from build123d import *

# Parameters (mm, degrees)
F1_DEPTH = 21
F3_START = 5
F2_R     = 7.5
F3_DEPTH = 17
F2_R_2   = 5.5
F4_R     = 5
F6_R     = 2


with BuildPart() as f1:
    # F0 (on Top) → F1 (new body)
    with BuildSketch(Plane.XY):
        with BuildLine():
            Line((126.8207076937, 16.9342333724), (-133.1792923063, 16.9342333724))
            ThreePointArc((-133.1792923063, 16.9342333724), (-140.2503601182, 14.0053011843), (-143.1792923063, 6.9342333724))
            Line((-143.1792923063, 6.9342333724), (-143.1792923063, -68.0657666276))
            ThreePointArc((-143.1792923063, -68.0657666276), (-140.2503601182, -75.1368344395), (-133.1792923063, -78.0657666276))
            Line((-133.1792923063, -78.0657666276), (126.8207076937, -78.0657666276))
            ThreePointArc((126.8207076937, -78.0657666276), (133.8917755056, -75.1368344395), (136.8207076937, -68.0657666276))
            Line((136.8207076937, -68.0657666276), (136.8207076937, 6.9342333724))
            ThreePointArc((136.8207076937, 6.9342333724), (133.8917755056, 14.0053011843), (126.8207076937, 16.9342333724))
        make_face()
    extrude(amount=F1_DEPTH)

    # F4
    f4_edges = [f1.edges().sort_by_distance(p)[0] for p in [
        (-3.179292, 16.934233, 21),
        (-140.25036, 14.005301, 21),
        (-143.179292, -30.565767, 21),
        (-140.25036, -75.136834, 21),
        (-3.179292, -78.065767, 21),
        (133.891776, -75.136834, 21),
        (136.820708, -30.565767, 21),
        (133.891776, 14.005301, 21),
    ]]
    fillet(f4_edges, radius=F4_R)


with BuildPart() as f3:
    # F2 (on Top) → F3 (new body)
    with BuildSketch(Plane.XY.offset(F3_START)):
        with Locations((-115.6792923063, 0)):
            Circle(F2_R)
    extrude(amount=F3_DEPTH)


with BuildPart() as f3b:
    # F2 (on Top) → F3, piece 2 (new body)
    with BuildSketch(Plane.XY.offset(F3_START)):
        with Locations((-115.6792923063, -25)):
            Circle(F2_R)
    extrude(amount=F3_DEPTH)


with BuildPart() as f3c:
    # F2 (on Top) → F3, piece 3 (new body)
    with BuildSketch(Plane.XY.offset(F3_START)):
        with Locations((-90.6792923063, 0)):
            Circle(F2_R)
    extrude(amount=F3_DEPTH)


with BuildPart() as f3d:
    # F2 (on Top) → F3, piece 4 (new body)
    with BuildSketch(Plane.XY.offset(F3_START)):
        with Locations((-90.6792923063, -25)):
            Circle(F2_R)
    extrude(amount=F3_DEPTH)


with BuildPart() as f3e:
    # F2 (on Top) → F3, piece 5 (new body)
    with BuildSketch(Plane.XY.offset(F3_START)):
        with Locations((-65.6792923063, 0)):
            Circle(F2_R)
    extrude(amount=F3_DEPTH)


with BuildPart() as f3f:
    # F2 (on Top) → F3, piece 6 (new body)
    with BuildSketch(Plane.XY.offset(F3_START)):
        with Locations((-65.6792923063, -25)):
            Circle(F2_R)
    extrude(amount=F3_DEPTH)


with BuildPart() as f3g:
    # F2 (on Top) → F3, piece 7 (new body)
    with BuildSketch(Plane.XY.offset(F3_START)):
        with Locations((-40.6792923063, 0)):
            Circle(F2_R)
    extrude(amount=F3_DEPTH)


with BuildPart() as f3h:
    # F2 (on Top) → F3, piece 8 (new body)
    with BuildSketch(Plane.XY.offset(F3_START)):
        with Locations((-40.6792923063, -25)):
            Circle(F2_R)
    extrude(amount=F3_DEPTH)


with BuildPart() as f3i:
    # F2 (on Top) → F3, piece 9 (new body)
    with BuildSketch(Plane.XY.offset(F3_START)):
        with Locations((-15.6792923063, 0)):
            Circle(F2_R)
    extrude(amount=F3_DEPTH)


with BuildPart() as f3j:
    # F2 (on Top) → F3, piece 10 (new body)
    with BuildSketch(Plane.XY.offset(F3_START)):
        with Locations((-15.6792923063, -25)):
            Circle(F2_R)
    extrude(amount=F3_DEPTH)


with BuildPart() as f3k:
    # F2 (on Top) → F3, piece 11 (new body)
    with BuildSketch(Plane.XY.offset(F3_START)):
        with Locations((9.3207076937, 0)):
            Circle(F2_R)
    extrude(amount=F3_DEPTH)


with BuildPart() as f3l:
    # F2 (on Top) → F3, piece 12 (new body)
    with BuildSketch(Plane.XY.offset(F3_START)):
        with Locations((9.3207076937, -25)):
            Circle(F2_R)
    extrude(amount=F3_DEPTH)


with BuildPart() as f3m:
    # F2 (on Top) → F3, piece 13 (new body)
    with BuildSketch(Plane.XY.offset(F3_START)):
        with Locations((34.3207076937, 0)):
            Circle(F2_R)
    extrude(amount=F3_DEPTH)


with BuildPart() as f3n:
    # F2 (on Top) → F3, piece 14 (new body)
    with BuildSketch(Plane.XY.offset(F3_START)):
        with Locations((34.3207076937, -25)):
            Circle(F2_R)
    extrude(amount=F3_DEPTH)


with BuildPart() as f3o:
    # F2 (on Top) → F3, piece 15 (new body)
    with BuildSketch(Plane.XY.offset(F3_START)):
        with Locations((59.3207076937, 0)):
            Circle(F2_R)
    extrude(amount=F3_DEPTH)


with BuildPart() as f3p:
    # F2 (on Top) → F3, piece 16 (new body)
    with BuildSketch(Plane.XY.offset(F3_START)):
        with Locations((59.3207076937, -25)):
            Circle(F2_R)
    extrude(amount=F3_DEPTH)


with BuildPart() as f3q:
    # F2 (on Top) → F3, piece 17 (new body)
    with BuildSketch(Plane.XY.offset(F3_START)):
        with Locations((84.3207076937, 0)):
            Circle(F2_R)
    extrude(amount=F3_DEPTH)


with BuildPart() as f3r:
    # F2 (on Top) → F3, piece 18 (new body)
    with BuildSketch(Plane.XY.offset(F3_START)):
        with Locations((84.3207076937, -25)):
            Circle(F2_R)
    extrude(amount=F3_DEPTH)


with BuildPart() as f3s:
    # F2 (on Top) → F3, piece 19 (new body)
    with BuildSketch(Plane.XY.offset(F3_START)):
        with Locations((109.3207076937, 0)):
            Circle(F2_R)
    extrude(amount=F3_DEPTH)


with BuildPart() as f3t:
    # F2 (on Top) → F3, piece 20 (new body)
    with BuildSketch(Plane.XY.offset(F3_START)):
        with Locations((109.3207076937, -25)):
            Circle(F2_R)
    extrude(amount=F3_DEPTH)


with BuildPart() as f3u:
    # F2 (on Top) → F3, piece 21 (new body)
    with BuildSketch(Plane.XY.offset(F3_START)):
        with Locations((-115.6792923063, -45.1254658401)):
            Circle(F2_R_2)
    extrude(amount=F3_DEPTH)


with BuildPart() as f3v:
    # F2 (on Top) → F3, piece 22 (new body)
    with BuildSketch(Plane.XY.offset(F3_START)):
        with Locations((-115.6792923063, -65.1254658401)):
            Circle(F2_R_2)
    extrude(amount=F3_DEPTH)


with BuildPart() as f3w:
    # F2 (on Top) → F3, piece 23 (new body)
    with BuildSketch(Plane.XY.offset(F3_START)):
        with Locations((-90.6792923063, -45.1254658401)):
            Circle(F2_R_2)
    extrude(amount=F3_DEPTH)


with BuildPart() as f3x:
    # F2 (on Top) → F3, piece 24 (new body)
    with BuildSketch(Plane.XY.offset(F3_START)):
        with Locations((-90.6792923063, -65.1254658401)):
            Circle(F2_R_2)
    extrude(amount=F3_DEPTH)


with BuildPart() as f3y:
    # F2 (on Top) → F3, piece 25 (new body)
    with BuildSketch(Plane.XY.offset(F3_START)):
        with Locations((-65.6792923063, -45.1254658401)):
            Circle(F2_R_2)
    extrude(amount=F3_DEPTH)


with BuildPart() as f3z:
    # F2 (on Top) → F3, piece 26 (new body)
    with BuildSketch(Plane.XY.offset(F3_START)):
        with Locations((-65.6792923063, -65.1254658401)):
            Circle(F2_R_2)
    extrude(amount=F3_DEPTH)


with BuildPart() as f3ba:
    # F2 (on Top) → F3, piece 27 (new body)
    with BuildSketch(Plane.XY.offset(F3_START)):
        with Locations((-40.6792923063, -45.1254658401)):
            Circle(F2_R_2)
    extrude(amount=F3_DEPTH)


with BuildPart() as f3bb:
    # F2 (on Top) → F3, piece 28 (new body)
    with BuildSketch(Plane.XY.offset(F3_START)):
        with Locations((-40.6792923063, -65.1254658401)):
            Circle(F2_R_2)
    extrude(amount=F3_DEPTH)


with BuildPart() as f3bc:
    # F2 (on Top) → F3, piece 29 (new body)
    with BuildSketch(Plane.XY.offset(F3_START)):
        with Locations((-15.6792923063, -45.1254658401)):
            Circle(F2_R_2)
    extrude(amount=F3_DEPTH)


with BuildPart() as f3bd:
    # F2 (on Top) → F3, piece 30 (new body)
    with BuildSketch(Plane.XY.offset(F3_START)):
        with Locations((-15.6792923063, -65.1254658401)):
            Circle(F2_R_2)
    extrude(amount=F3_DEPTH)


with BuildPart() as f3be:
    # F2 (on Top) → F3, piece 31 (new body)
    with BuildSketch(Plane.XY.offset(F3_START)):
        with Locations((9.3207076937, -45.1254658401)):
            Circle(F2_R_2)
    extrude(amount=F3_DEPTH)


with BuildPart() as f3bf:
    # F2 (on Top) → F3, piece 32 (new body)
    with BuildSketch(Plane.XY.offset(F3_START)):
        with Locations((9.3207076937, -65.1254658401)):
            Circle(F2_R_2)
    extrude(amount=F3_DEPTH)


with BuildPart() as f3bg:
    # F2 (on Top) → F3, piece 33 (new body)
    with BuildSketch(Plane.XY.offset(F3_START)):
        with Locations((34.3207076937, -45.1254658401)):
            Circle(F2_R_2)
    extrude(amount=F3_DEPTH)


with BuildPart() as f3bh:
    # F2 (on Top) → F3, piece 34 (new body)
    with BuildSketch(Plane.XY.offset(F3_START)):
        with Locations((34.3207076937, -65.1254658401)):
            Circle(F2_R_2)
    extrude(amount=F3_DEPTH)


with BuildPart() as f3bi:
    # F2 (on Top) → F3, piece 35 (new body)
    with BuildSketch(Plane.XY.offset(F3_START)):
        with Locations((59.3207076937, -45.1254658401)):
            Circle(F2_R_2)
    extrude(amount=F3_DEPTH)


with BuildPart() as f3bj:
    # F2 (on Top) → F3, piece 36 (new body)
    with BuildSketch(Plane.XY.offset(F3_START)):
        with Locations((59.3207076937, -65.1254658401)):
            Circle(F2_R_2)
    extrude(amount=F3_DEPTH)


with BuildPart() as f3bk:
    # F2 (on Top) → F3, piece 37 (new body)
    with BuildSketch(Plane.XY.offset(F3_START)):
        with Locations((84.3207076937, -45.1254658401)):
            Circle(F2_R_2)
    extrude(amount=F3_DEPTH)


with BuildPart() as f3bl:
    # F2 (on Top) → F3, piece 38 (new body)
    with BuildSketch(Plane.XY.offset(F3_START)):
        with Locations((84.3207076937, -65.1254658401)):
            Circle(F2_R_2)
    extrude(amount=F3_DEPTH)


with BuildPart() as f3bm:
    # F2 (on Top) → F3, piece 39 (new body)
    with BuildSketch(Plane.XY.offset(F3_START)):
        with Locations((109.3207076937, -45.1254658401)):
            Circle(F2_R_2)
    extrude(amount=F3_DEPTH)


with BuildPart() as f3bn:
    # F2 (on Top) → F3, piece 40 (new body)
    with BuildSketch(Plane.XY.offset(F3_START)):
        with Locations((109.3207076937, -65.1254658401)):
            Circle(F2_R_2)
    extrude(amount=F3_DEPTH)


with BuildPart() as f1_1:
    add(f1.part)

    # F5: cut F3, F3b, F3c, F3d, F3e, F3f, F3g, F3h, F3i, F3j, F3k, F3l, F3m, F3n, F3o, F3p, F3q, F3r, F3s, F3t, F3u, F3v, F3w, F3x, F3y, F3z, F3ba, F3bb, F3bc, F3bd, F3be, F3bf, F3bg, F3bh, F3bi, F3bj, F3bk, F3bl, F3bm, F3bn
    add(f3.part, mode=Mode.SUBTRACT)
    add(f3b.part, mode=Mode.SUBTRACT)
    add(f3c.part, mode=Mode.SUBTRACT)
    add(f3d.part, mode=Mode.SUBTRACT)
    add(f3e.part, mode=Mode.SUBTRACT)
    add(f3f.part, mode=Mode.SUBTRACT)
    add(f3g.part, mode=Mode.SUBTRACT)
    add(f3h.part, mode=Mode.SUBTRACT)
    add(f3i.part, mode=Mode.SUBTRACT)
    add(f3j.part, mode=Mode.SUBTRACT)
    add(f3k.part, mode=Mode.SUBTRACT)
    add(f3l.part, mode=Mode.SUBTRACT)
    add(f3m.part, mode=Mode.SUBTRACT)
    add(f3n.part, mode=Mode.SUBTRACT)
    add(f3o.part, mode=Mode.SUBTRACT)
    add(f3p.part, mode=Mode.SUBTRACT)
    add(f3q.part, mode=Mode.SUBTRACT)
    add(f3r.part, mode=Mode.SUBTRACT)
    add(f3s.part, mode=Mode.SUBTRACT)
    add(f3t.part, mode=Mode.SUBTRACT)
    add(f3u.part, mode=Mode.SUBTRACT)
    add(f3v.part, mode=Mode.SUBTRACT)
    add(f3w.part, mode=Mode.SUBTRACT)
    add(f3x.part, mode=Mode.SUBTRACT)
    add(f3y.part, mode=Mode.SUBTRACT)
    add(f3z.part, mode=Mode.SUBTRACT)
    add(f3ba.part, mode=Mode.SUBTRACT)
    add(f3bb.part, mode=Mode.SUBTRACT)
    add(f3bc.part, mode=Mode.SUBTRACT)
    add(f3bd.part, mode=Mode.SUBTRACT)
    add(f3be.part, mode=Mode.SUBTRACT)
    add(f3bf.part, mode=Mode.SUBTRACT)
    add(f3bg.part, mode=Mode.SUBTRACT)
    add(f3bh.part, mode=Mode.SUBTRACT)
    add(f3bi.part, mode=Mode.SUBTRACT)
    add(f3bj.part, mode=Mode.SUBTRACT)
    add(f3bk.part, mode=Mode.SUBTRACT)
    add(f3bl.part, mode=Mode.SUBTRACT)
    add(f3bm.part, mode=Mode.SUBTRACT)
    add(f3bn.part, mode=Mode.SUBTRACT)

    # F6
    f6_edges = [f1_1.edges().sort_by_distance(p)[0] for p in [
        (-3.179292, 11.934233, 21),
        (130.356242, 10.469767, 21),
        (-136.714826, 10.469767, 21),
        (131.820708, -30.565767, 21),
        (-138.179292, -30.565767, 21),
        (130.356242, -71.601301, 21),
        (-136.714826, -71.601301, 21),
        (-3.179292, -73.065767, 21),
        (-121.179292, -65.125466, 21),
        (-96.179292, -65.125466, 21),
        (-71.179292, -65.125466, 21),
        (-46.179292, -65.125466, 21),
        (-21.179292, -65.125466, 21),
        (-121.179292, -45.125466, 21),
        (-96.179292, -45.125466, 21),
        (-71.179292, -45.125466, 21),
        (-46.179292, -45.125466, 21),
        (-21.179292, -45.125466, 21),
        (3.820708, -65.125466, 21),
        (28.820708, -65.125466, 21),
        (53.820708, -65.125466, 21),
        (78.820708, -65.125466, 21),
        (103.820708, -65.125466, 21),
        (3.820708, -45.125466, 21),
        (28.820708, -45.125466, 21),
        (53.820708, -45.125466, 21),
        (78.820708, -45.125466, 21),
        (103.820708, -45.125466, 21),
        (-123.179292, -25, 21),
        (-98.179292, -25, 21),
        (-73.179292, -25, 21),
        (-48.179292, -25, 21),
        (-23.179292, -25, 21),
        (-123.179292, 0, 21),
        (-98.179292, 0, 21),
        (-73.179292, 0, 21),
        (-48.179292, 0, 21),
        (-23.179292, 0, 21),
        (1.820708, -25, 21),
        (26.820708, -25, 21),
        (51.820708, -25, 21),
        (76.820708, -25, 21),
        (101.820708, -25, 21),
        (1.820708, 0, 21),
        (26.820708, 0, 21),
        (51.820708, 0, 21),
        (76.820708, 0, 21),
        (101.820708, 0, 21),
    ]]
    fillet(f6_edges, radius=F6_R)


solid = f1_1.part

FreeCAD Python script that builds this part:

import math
import FreeCAD as App
import Part
import Sketcher

V = App.Vector


def edges_at(feature, points):
    """Names of the edges that pass closest to the given points."""
    edges = feature.Shape.Edges
    near = lambda p: min(range(len(edges)), key=lambda i: edges[i].distToShape(Part.Vertex(*p))[0])
    return sorted({f"Edge{near(p) + 1}" for p in points})

doc = App.newDocument("Part")
body = doc.addObject("PartDesign::Body", "Body")

# Sketch on XY plane
sketch1 = body.newObject("Sketcher::SketchObject", "Sketch")
sketch1.AttachmentSupport = (doc.getObject("XY_Plane"), [""])
sketch1.MapMode = "FlatFace"
sketch1.addGeometry(Part.LineSegment(V(127, 17, 0), V(-133, 17, 0)), False)
sketch1.addGeometry(Part.ArcOfCircle(Part.Circle(V(-133, 7, 0), V(0, 0, 1), 10), math.radians(90), math.radians(180)), False)
sketch1.addGeometry(Part.LineSegment(V(-143, 7, 0), V(-143, -68, 0)), False)
sketch1.addGeometry(Part.ArcOfCircle(Part.Circle(V(-133, -68, 0), V(0, 0, 1), 10), math.radians(180), math.radians(270)), False)
sketch1.addGeometry(Part.LineSegment(V(-133, -78, 0), V(127, -78, 0)), False)
sketch1.addGeometry(Part.ArcOfCircle(Part.Circle(V(127, -68, 0), V(0, 0, 1), 10), math.radians(-90), math.radians(0)), False)
sketch1.addGeometry(Part.LineSegment(V(137, -68, 0), V(137, 7, 0)), False)
sketch1.addGeometry(Part.ArcOfCircle(Part.Circle(V(127, 7, 0), V(0, 0, 1), 10), math.radians(0), math.radians(90)), False)
sketch1.addConstraint(Sketcher.Constraint("Tangent", 0, 2, 1, 1))
sketch1.addConstraint(Sketcher.Constraint("Tangent", 1, 2, 2, 1))
sketch1.addConstraint(Sketcher.Constraint("Tangent", 2, 2, 3, 1))
sketch1.addConstraint(Sketcher.Constraint("Tangent", 3, 2, 4, 1))
sketch1.addConstraint(Sketcher.Constraint("Tangent", 4, 2, 5, 1))
sketch1.addConstraint(Sketcher.Constraint("Tangent", 5, 2, 6, 1))
sketch1.addConstraint(Sketcher.Constraint("Tangent", 6, 2, 7, 1))
sketch1.addConstraint(Sketcher.Constraint("Tangent", 7, 2, 0, 1))
sketch1.addConstraint(Sketcher.Constraint("Horizontal", 0))
sketch1.addConstraint(Sketcher.Constraint("Vertical", 2))
sketch1.addConstraint(Sketcher.Constraint("Horizontal", 4))
sketch1.addConstraint(Sketcher.Constraint("Vertical", 6))
sketch1.addConstraint(Sketcher.Constraint("Equal", 1, 3))
sketch1.addConstraint(Sketcher.Constraint("Equal", 3, 5))
sketch1.addConstraint(Sketcher.Constraint("Equal", 5, 7))
sketch1.addConstraint(Sketcher.Constraint("Radius", 1, 10.0))
sketch1.addConstraint(Sketcher.Constraint("DistanceX", 0, 2, 0, 1, 260.0))
sketch1.addConstraint(Sketcher.Constraint("DistanceY", 2, 2, 2, 1, 75.0))
sketch1.addConstraint(Sketcher.Constraint("DistanceX", 1, 3, -1, 1, 133.179292))
sketch1.addConstraint(Sketcher.Constraint("DistanceY", -1, 1, 1, 3, 6.934233))
pad1 = body.newObject("PartDesign::Pad", "Pad")
pad1.Profile = sketch1
pad1.Length = 21
doc.recompute()

fillet = body.newObject("PartDesign::Fillet", "Fillet")
fillet.Base = (pad1, edges_at(pad1, [
    (-3.179, 16.934, 21),
    (-140.25, 14.005, 21),
    (-143.179, -30.566, 21),
    (-140.25, -75.137, 21),
    (-3.179, -78.066, 21),
    (133.892, -75.137, 21),
    (136.821, -30.566, 21),
    (133.892, 14.005, 21),
]))
fillet.Radius = 5
body2 = doc.addObject("PartDesign::Body", "Body001")

# Sketch on XY plane
sketch2 = body2.newObject("Sketcher::SketchObject", "Sketch001")
sketch2.AttachmentSupport = (doc.getObject("XY_Plane001"), [""])
sketch2.MapMode = "FlatFace"
sketch2.AttachmentOffset = App.Placement(V(0, 0, 5), App.Rotation())
sketch2.addGeometry(Part.Circle(V(-116, 0, 0), V(0, 0, 1), 8), False)
sketch2.addConstraint(Sketcher.Constraint("PointOnObject", 0, 3, -1))
sketch2.addConstraint(Sketcher.Constraint("Diameter", 0, 15.0))
sketch2.addConstraint(Sketcher.Constraint("DistanceX", 0, 3, -1, 1, 115.679292))
pad2 = body2.newObject("PartDesign::Pad", "Pad001")
pad2.Profile = sketch2
pad2.Length = 17
body3 = doc.addObject("PartDesign::Body", "Body002")

# Sketch on XY plane
sketch3 = body3.newObject("Sketcher::SketchObject", "Sketch002")
sketch3.AttachmentSupport = (doc.getObject("XY_Plane002"), [""])
sketch3.MapMode = "FlatFace"
sketch3.AttachmentOffset = App.Placement(V(0, 0, 5), App.Rotation())
sketch3.addGeometry(Part.Circle(V(-116, -25, 0), V(0, 0, 1), 8), False)
sketch3.addConstraint(Sketcher.Constraint("Diameter", 0, 15.0))
sketch3.addConstraint(Sketcher.Constraint("DistanceY", 0, 3, -1, 1, 25.0))
sketch3.addConstraint(Sketcher.Constraint("DistanceX", 0, 3, -1, 1, 115.679292))
pad3 = body3.newObject("PartDesign::Pad", "Pad002")
pad3.Profile = sketch3
pad3.Length = 17
body4 = doc.addObject("PartDesign::Body", "Body003")

# Sketch on XY plane
sketch4 = body4.newObject("Sketcher::SketchObject", "Sketch003")
sketch4.AttachmentSupport = (doc.getObject("XY_Plane003"), [""])
sketch4.MapMode = "FlatFace"
sketch4.AttachmentOffset = App.Placement(V(0, 0, 5), App.Rotation())
sketch4.addGeometry(Part.Circle(V(-91, 0, 0), V(0, 0, 1), 8), False)
sketch4.addConstraint(Sketcher.Constraint("PointOnObject", 0, 3, -1))
sketch4.addConstraint(Sketcher.Constraint("Diameter", 0, 15.0))
sketch4.addConstraint(Sketcher.Constraint("DistanceX", 0, 3, -1, 1, 90.679292))
pad4 = body4.newObject("PartDesign::Pad", "Pad003")
pad4.Profile = sketch4
pad4.Length = 17
body5 = doc.addObject("PartDesign::Body", "Body004")

# Sketch on XY plane
sketch5 = body5.newObject("Sketcher::SketchObject", "Sketch004")
sketch5.AttachmentSupport = (doc.getObject("XY_Plane004"), [""])
sketch5.MapMode = "FlatFace"
sketch5.AttachmentOffset = App.Placement(V(0, 0, 5), App.Rotation())
sketch5.addGeometry(Part.Circle(V(-91, -25, 0), V(0, 0, 1), 8), False)
sketch5.addConstraint(Sketcher.Constraint("Diameter", 0, 15.0))
sketch5.addConstraint(Sketcher.Constraint("DistanceY", 0, 3, -1, 1, 25.0))
sketch5.addConstraint(Sketcher.Constraint("DistanceX", 0, 3, -1, 1, 90.679292))
pad5 = body5.newObject("PartDesign::Pad", "Pad004")
pad5.Profile = sketch5
pad5.Length = 17
body6 = doc.addObject("PartDesign::Body", "Body005")

# Sketch on XY plane
sketch6 = body6.newObject("Sketcher::SketchObject", "Sketch005")
sketch6.AttachmentSupport = (doc.getObject("XY_Plane005"), [""])
sketch6.MapMode = "FlatFace"
sketch6.AttachmentOffset = App.Placement(V(0, 0, 5), App.Rotation())
sketch6.addGeometry(Part.Circle(V(-66, 0, 0), V(0, 0, 1), 8), False)
sketch6.addConstraint(Sketcher.Constraint("PointOnObject", 0, 3, -1))
sketch6.addConstraint(Sketcher.Constraint("Diameter", 0, 15.0))
sketch6.addConstraint(Sketcher.Constraint("DistanceX", 0, 3, -1, 1, 65.679292))
pad6 = body6.newObject("PartDesign::Pad", "Pad005")
pad6.Profile = sketch6
pad6.Length = 17
body7 = doc.addObject("PartDesign::Body", "Body006")

# Sketch on XY plane
sketch7 = body7.newObject("Sketcher::SketchObject", "Sketch006")
sketch7.AttachmentSupport = (doc.getObject("XY_Plane006"), [""])
sketch7.MapMode = "FlatFace"
sketch7.AttachmentOffset = App.Placement(V(0, 0, 5), App.Rotation())
sketch7.addGeometry(Part.Circle(V(-66, -25, 0), V(0, 0, 1), 8), False)
sketch7.addConstraint(Sketcher.Constraint("Diameter", 0, 15.0))
sketch7.addConstraint(Sketcher.Constraint("DistanceY", 0, 3, -1, 1, 25.0))
sketch7.addConstraint(Sketcher.Constraint("DistanceX", 0, 3, -1, 1, 65.679292))
pad7 = body7.newObject("PartDesign::Pad", "Pad006")
pad7.Profile = sketch7
pad7.Length = 17
body8 = doc.addObject("PartDesign::Body", "Body007")

# Sketch on XY plane
sketch8 = body8.newObject("Sketcher::SketchObject", "Sketch007")
sketch8.AttachmentSupport = (doc.getObject("XY_Plane007"), [""])
sketch8.MapMode = "FlatFace"
sketch8.AttachmentOffset = App.Placement(V(0, 0, 5), App.Rotation())
sketch8.addGeometry(Part.Circle(V(-41, 0, 0), V(0, 0, 1), 8), False)
sketch8.addConstraint(Sketcher.Constraint("PointOnObject", 0, 3, -1))
sketch8.addConstraint(Sketcher.Constraint("Diameter", 0, 15.0))
sketch8.addConstraint(Sketcher.Constraint("DistanceX", 0, 3, -1, 1, 40.679292))
pad8 = body8.newObject("PartDesign::Pad", "Pad007")
pad8.Profile = sketch8
pad8.Length = 17
body9 = doc.addObject("PartDesign::Body", "Body008")

# Sketch on XY plane
sketch9 = body9.newObject("Sketcher::SketchObject", "Sketch008")
sketch9.AttachmentSupport = (doc.getObject("XY_Plane008"), [""])
sketch9.MapMode = "FlatFace"
sketch9.AttachmentOffset = App.Placement(V(0, 0, 5), App.Rotation())
sketch9.addGeometry(Part.Circle(V(-41, -25, 0), V(0, 0, 1), 8), False)
sketch9.addConstraint(Sketcher.Constraint("Diameter", 0, 15.0))
sketch9.addConstraint(Sketcher.Constraint("DistanceY", 0, 3, -1, 1, 25.0))
sketch9.addConstraint(Sketcher.Constraint("DistanceX", 0, 3, -1, 1, 40.679292))
pad9 = body9.newObject("PartDesign::Pad", "Pad008")
pad9.Profile = sketch9
pad9.Length = 17
body10 = doc.addObject("PartDesign::Body", "Body009")

# Sketch on XY plane
sketch10 = body10.newObject("Sketcher::SketchObject", "Sketch009")
sketch10.AttachmentSupport = (doc.getObject("XY_Plane009"), [""])
sketch10.MapMode = "FlatFace"
sketch10.AttachmentOffset = App.Placement(V(0, 0, 5), App.Rotation())
sketch10.addGeometry(Part.Circle(V(-16, 0, 0), V(0, 0, 1), 8), False)
sketch10.addConstraint(Sketcher.Constraint("PointOnObject", 0, 3, -1))
sketch10.addConstraint(Sketcher.Constraint("Diameter", 0, 15.0))
sketch10.addConstraint(Sketcher.Constraint("DistanceX", 0, 3, -1, 1, 15.679292))
pad10 = body10.newObject("PartDesign::Pad", "Pad009")
pad10.Profile = sketch10
pad10.Length = 17
body11 = doc.addObject("PartDesign::Body", "Body010")

# Sketch on XY plane
sketch11 = body11.newObject("Sketcher::SketchObject", "Sketch010")
sketch11.AttachmentSupport = (doc.getObject("XY_Plane010"), [""])
sketch11.MapMode = "FlatFace"
sketch11.AttachmentOffset = App.Placement(V(0, 0, 5), App.Rotation())
sketch11.addGeometry(Part.Circle(V(-16, -25, 0), V(0, 0, 1), 8), False)
sketch11.addConstraint(Sketcher.Constraint("Diameter", 0, 15.0))
sketch11.addConstraint(Sketcher.Constraint("DistanceY", 0, 3, -1, 1, 25.0))
sketch11.addConstraint(Sketcher.Constraint("DistanceX", 0, 3, -1, 1, 15.679292))
pad11 = body11.newObject("PartDesign::Pad", "Pad010")
pad11.Profile = sketch11
pad11.Length = 17
body12 = doc.addObject("PartDesign::Body", "Body011")

# Sketch on XY plane
sketch12 = body12.newObject("Sketcher::SketchObject", "Sketch011")
sketch12.AttachmentSupport = (doc.getObject("XY_Plane011"), [""])
sketch12.MapMode = "FlatFace"
sketch12.AttachmentOffset = App.Placement(V(0, 0, 5), App.Rotation())
sketch12.addGeometry(Part.Circle(V(9, 0, 0), V(0, 0, 1), 8), False)
sketch12.addConstraint(Sketcher.Constraint("PointOnObject", 0, 3, -1))
sketch12.addConstraint(Sketcher.Constraint("Diameter", 0, 15.0))
sketch12.addConstraint(Sketcher.Constraint("DistanceX", -1, 1, 0, 3, 9.320708))
pad12 = body12.newObject("PartDesign::Pad", "Pad011")
pad12.Profile = sketch12
pad12.Length = 17
body13 = doc.addObject("PartDesign::Body", "Body012")

# Sketch on XY plane
sketch13 = body13.newObject("Sketcher::SketchObject", "Sketch012")
sketch13.AttachmentSupport = (doc.getObject("XY_Plane012"), [""])
sketch13.MapMode = "FlatFace"
sketch13.AttachmentOffset = App.Placement(V(0, 0, 5), App.Rotation())
sketch13.addGeometry(Part.Circle(V(9, -25, 0), V(0, 0, 1), 8), False)
sketch13.addConstraint(Sketcher.Constraint("Diameter", 0, 15.0))
sketch13.addConstraint(Sketcher.Constraint("DistanceY", 0, 3, -1, 1, 25.0))
sketch13.addConstraint(Sketcher.Constraint("DistanceX", -1, 1, 0, 3, 9.320708))
pad13 = body13.newObject("PartDesign::Pad", "Pad012")
pad13.Profile = sketch13
pad13.Length = 17
body14 = doc.addObject("PartDesign::Body", "Body013")

# Sketch on XY plane
sketch14 = body14.newObject("Sketcher::SketchObject", "Sketch013")
sketch14.AttachmentSupport = (doc.getObject("XY_Plane013"), [""])
sketch14.MapMode = "FlatFace"
sketch14.AttachmentOffset = App.Placement(V(0, 0, 5), App.Rotation())
sketch14.addGeometry(Part.Circle(V(34, 0, 0), V(0, 0, 1), 8), False)
sketch14.addConstraint(Sketcher.Constraint("PointOnObject", 0, 3, -1))
sketch14.addConstraint(Sketcher.Constraint("Diameter", 0, 15.0))
sketch14.addConstraint(Sketcher.Constraint("DistanceX", -1, 1, 0, 3, 34.320708))
pad14 = body14.newObject("PartDesign::Pad", "Pad013")
pad14.Profile = sketch14
pad14.Length = 17
body15 = doc.addObject("PartDesign::Body", "Body014")

# Sketch on XY plane
sketch15 = body15.newObject("Sketcher::SketchObject", "Sketch014")
sketch15.AttachmentSupport = (doc.getObject("XY_Plane014"), [""])
sketch15.MapMode = "FlatFace"
sketch15.AttachmentOffset = App.Placement(V(0, 0, 5), App.Rotation())
sketch15.addGeometry(Part.Circle(V(34, -25, 0), V(0, 0, 1), 8), False)
sketch15.addConstraint(Sketcher.Constraint("Diameter", 0, 15.0))
sketch15.addConstraint(Sketcher.Constraint("DistanceY", 0, 3, -1, 1, 25.0))
sketch15.addConstraint(Sketcher.Constraint("DistanceX", -1, 1, 0, 3, 34.320708))
pad15 = body15.newObject("PartDesign::Pad", "Pad014")
pad15.Profile = sketch15
pad15.Length = 17
body16 = doc.addObject("PartDesign::Body", "Body015")

# Sketch on XY plane
sketch16 = body16.newObject("Sketcher::SketchObject", "Sketch015")
sketch16.AttachmentSupport = (doc.getObject("XY_Plane015"), [""])
sketch16.MapMode = "FlatFace"
sketch16.AttachmentOffset = App.Placement(V(0, 0, 5), App.Rotation())
sketch16.addGeometry(Part.Circle(V(59, 0, 0), V(0, 0, 1), 8), False)
sketch16.addConstraint(Sketcher.Constraint("PointOnObject", 0, 3, -1))
sketch16.addConstraint(Sketcher.Constraint("Diameter", 0, 15.0))
sketch16.addConstraint(Sketcher.Constraint("DistanceX", -1, 1, 0, 3, 59.320708))
pad16 = body16.newObject("PartDesign::Pad", "Pad015")
pad16.Profile = sketch16
pad16.Length = 17
body17 = doc.addObject("PartDesign::Body", "Body016")

# Sketch on XY plane
sketch17 = body17.newObject("Sketcher::SketchObject", "Sketch016")
sketch17.AttachmentSupport = (doc.getObject("XY_Plane016"), [""])
sketch17.MapMode = "FlatFace"
sketch17.AttachmentOffset = App.Placement(V(0, 0, 5), App.Rotation())
sketch17.addGeometry(Part.Circle(V(59, -25, 0), V(0, 0, 1), 8), False)
sketch17.addConstraint(Sketcher.Constraint("Diameter", 0, 15.0))
sketch17.addConstraint(Sketcher.Constraint("DistanceY", 0, 3, -1, 1, 25.0))
sketch17.addConstraint(Sketcher.Constraint("DistanceX", -1, 1, 0, 3, 59.320708))
pad17 = body17.newObject("PartDesign::Pad", "Pad016")
pad17.Profile = sketch17
pad17.Length = 17
body18 = doc.addObject("PartDesign::Body", "Body017")

# Sketch on XY plane
sketch18 = body18.newObject("Sketcher::SketchObject", "Sketch017")
sketch18.AttachmentSupport = (doc.getObject("XY_Plane017"), [""])
sketch18.MapMode = "FlatFace"
sketch18.AttachmentOffset = App.Placement(V(0, 0, 5), App.Rotation())
sketch18.addGeometry(Part.Circle(V(84, 0, 0), V(0, 0, 1), 8), False)
sketch18.addConstraint(Sketcher.Constraint("PointOnObject", 0, 3, -1))
sketch18.addConstraint(Sketcher.Constraint("Diameter", 0, 15.0))
sketch18.addConstraint(Sketcher.Constraint("DistanceX", -1, 1, 0, 3, 84.320708))
pad18 = body18.newObject("PartDesign::Pad", "Pad017")
pad18.Profile = sketch18
pad18.Length = 17
body19 = doc.addObject("PartDesign::Body", "Body018")

# Sketch on XY plane
sketch19 = body19.newObject("Sketcher::SketchObject", "Sketch018")
sketch19.AttachmentSupport = (doc.getObject("XY_Plane018"), [""])
sketch19.MapMode = "FlatFace"
sketch19.AttachmentOffset = App.Placement(V(0, 0, 5), App.Rotation())
sketch19.addGeometry(Part.Circle(V(84, -25, 0), V(0, 0, 1), 8), False)
sketch19.addConstraint(Sketcher.Constraint("Diameter", 0, 15.0))
sketch19.addConstraint(Sketcher.Constraint("DistanceY", 0, 3, -1, 1, 25.0))
sketch19.addConstraint(Sketcher.Constraint("DistanceX", -1, 1, 0, 3, 84.320708))
pad19 = body19.newObject("PartDesign::Pad", "Pad018")
pad19.Profile = sketch19
pad19.Length = 17
body20 = doc.addObject("PartDesign::Body", "Body019")

# Sketch on XY plane
sketch20 = body20.newObject("Sketcher::SketchObject", "Sketch019")
sketch20.AttachmentSupport = (doc.getObject("XY_Plane019"), [""])
sketch20.MapMode = "FlatFace"
sketch20.AttachmentOffset = App.Placement(V(0, 0, 5), App.Rotation())
sketch20.addGeometry(Part.Circle(V(109, 0, 0), V(0, 0, 1), 8), False)
sketch20.addConstraint(Sketcher.Constraint("PointOnObject", 0, 3, -1))
sketch20.addConstraint(Sketcher.Constraint("Diameter", 0, 15.0))
sketch20.addConstraint(Sketcher.Constraint("DistanceX", -1, 1, 0, 3, 109.320708))
pad20 = body20.newObject("PartDesign::Pad", "Pad019")
pad20.Profile = sketch20
pad20.Length = 17
body21 = doc.addObject("PartDesign::Body", "Body020")

# Sketch on XY plane
sketch21 = body21.newObject("Sketcher::SketchObject", "Sketch020")
sketch21.AttachmentSupport = (doc.getObject("XY_Plane020"), [""])
sketch21.MapMode = "FlatFace"
sketch21.AttachmentOffset = App.Placement(V(0, 0, 5), App.Rotation())
sketch21.addGeometry(Part.Circle(V(109, -25, 0), V(0, 0, 1), 8), False)
sketch21.addConstraint(Sketcher.Constraint("Diameter", 0, 15.0))
sketch21.addConstraint(Sketcher.Constraint("DistanceY", 0, 3, -1, 1, 25.0))
sketch21.addConstraint(Sketcher.Constraint("DistanceX", -1, 1, 0, 3, 109.320708))
pad21 = body21.newObject("PartDesign::Pad", "Pad020")
pad21.Profile = sketch21
pad21.Length = 17
body22 = doc.addObject("PartDesign::Body", "Body021")

# Sketch on XY plane
sketch22 = body22.newObject("Sketcher::SketchObject", "Sketch021")
sketch22.AttachmentSupport = (doc.getObject("XY_Plane021"), [""])
sketch22.MapMode = "FlatFace"
sketch22.AttachmentOffset = App.Placement(V(0, 0, 5), App.Rotation())
sketch22.addGeometry(Part.Circle(V(-116, -45, 0), V(0, 0, 1), 6), False)
sketch22.addConstraint(Sketcher.Constraint("Diameter", 0, 11.0))
sketch22.addConstraint(Sketcher.Constraint("DistanceX", 0, 3, -1, 1, 115.679292))
sketch22.addConstraint(Sketcher.Constraint("DistanceY", 0, 3, -1, 1, 45.125466))
pad22 = body22.newObject("PartDesign::Pad", "Pad021")
pad22.Profile = sketch22
pad22.Length = 17
body23 = doc.addObject("PartDesign::Body", "Body022")

# Sketch on XY plane
sketch23 = body23.newObject("Sketcher::SketchObject", "Sketch022")
sketch23.AttachmentSupport = (doc.getObject("XY_Plane022"), [""])
sketch23.MapMode = "FlatFace"
sketch23.AttachmentOffset = App.Placement(V(0, 0, 5), App.Rotation())
sketch23.addGeometry(Part.Circle(V(-116, -65, 0), V(0, 0, 1), 6), False)
sketch23.addConstraint(Sketcher.Constraint("Diameter", 0, 11.0))
sketch23.addConstraint(Sketcher.Constraint("DistanceX", 0, 3, -1, 1, 115.679292))
sketch23.addConstraint(Sketcher.Constraint("DistanceY", 0, 3, -1, 1, 65.125466))
pad23 = body23.newObject("PartDesign::Pad", "Pad022")
pad23.Profile = sketch23
pad23.Length = 17
body24 = doc.addObject("PartDesign::Body", "Body023")

# Sketch on XY plane
sketch24 = body24.newObject("Sketcher::SketchObject", "Sketch023")
sketch24.AttachmentSupport = (doc.getObject("XY_Plane023"), [""])
sketch24.MapMode = "FlatFace"
sketch24.AttachmentOffset = App.Placement(V(0, 0, 5), App.Rotation())
sketch24.addGeometry(Part.Circle(V(-91, -45, 0), V(0, 0, 1), 6), False)
sketch24.addConstraint(Sketcher.Constraint("Diameter", 0, 11.0))
sketch24.addConstraint(Sketcher.Constraint("DistanceX", 0, 3, -1, 1, 90.679292))
sketch24.addConstraint(Sketcher.Constraint("DistanceY", 0, 3, -1, 1, 45.125466))
pad24 = body24.newObject("PartDesign::Pad", "Pad023")
pad24.Profile = sketch24
pad24.Length = 17
body25 = doc.addObject("PartDesign::Body", "Body024")

# Sketch on XY plane
sketch25 = body25.newObject("Sketcher::SketchObject", "Sketch024")
sketch25.AttachmentSupport = (doc.getObject("XY_Plane024"), [""])
sketch25.MapMode = "FlatFace"
sketch25.AttachmentOffset = App.Placement(V(0, 0, 5), App.Rotation())
sketch25.addGeometry(Part.Circle(V(-91, -65, 0), V(0, 0, 1), 6), False)
sketch25.addConstraint(Sketcher.Constraint("Diameter", 0, 11.0))
sketch25.addConstraint(Sketcher.Constraint("DistanceX", 0, 3, -1, 1, 90.679292))
sketch25.addConstraint(Sketcher.Constraint("DistanceY", 0, 3, -1, 1, 65.125466))
pad25 = body25.newObject("PartDesign::Pad", "Pad024")
pad25.Profile = sketch25
pad25.Length = 17
body26 = doc.addObject("PartDesign::Body", "Body025")

# Sketch on XY plane
sketch26 = body26.newObject("Sketcher::SketchObject", "Sketch025")
sketch26.AttachmentSupport = (doc.getObject("XY_Plane025"), [""])
sketch26.MapMode = "FlatFace"
sketch26.AttachmentOffset = App.Placement(V(0, 0, 5), App.Rotation())
sketch26.addGeometry(Part.Circle(V(-66, -45, 0), V(0, 0, 1), 6), False)
sketch26.addConstraint(Sketcher.Constraint("Diameter", 0, 11.0))
sketch26.addConstraint(Sketcher.Constraint("DistanceX", 0, 3, -1, 1, 65.679292))
sketch26.addConstraint(Sketcher.Constraint("DistanceY", 0, 3, -1, 1, 45.125466))
pad26 = body26.newObject("PartDesign::Pad", "Pad025")
pad26.Profile = sketch26
pad26.Length = 17
body27 = doc.addObject("PartDesign::Body", "Body026")

# Sketch on XY plane
sketch27 = body27.newObject("Sketcher::SketchObject", "Sketch026")
sketch27.AttachmentSupport = (doc.getObject("XY_Plane026"), [""])
sketch27.MapMode = "FlatFace"
sketch27.AttachmentOffset = App.Placement(V(0, 0, 5), App.Rotation())
sketch27.addGeometry(Part.Circle(V(-66, -65, 0), V(0, 0, 1), 6), False)
sketch27.addConstraint(Sketcher.Constraint("Diameter", 0, 11.0))
sketch27.addConstraint(Sketcher.Constraint("DistanceX", 0, 3, -1, 1, 65.679292))
sketch27.addConstraint(Sketcher.Constraint("DistanceY", 0, 3, -1, 1, 65.125466))
pad27 = body27.newObject("PartDesign::Pad", "Pad026")
pad27.Profile = sketch27
pad27.Length = 17
body28 = doc.addObject("PartDesign::Body", "Body027")

# Sketch on XY plane
sketch28 = body28.newObject("Sketcher::SketchObject", "Sketch027")
sketch28.AttachmentSupport = (doc.getObject("XY_Plane027"), [""])
sketch28.MapMode = "FlatFace"
sketch28.AttachmentOffset = App.Placement(V(0, 0, 5), App.Rotation())
sketch28.addGeometry(Part.Circle(V(-41, -45, 0), V(0, 0, 1), 6), False)
sketch28.addConstraint(Sketcher.Constraint("Diameter", 0, 11.0))
sketch28.addConstraint(Sketcher.Constraint("DistanceX", 0, 3, -1, 1, 40.679292))
sketch28.addConstraint(Sketcher.Constraint("DistanceY", 0, 3, -1, 1, 45.125466))
pad28 = body28.newObject("PartDesign::Pad", "Pad027")
pad28.Profile = sketch28
pad28.Length = 17
body29 = doc.addObject("PartDesign::Body", "Body028")

# Sketch on XY plane
sketch29 = body29.newObject("Sketcher::SketchObject", "Sketch028")
sketch29.AttachmentSupport = (doc.getObject("XY_Plane028"), [""])
sketch29.MapMode = "FlatFace"
sketch29.AttachmentOffset = App.Placement(V(0, 0, 5), App.Rotation())
sketch29.addGeometry(Part.Circle(V(-41, -65, 0), V(0, 0, 1), 6), False)
sketch29.addConstraint(Sketcher.Constraint("Diameter", 0, 11.0))
sketch29.addConstraint(Sketcher.Constraint("DistanceX", 0, 3, -1, 1, 40.679292))
sketch29.addConstraint(Sketcher.Constraint("DistanceY", 0, 3, -1, 1, 65.125466))
pad29 = body29.newObject("PartDesign::Pad", "Pad028")
pad29.Profile = sketch29
pad29.Length = 17
body30 = doc.addObject("PartDesign::Body", "Body029")

# Sketch on XY plane
sketch30 = body30.newObject("Sketcher::SketchObject", "Sketch029")
sketch30.AttachmentSupport = (doc.getObject("XY_Plane029"), [""])
sketch30.MapMode = "FlatFace"
sketch30.AttachmentOffset = App.Placement(V(0, 0, 5), App.Rotation())
sketch30.addGeometry(Part.Circle(V(-16, -45, 0), V(0, 0, 1), 6), False)
sketch30.addConstraint(Sketcher.Constraint("Diameter", 0, 11.0))
sketch30.addConstraint(Sketcher.Constraint("DistanceX", 0, 3, -1, 1, 15.679292))
sketch30.addConstraint(Sketcher.Constraint("DistanceY", 0, 3, -1, 1, 45.125466))
pad30 = body30.newObject("PartDesign::Pad", "Pad029")
pad30.Profile = sketch30
pad30.Length = 17
body31 = doc.addObject("PartDesign::Body", "Body030")

# Sketch on XY plane
sketch31 = body31.newObject("Sketcher::SketchObject", "Sketch030")
sketch31.AttachmentSupport = (doc.getObject("XY_Plane030"), [""])
sketch31.MapMode = "FlatFace"
sketch31.AttachmentOffset = App.Placement(V(0, 0, 5), App.Rotation())
sketch31.addGeometry(Part.Circle(V(-16, -65, 0), V(0, 0, 1), 6), False)
sketch31.addConstraint(Sketcher.Constraint("Diameter", 0, 11.0))
sketch31.addConstraint(Sketcher.Constraint("DistanceX", 0, 3, -1, 1, 15.679292))
sketch31.addConstraint(Sketcher.Constraint("DistanceY", 0, 3, -1, 1, 65.125466))
pad31 = body31.newObject("PartDesign::Pad", "Pad030")
pad31.Profile = sketch31
pad31.Length = 17
body32 = doc.addObject("PartDesign::Body", "Body031")

# Sketch on XY plane
sketch32 = body32.newObject("Sketcher::SketchObject", "Sketch031")
sketch32.AttachmentSupport = (doc.getObject("XY_Plane031"), [""])
sketch32.MapMode = "FlatFace"
sketch32.AttachmentOffset = App.Placement(V(0, 0, 5), App.Rotation())
sketch32.addGeometry(Part.Circle(V(9, -45, 0), V(0, 0, 1), 6), False)
sketch32.addConstraint(Sketcher.Constraint("Diameter", 0, 11.0))
sketch32.addConstraint(Sketcher.Constraint("DistanceX", -1, 1, 0, 3, 9.320708))
sketch32.addConstraint(Sketcher.Constraint("DistanceY", 0, 3, -1, 1, 45.125466))
pad32 = body32.newObject("PartDesign::Pad", "Pad031")
pad32.Profile = sketch32
pad32.Length = 17
body33 = doc.addObject("PartDesign::Body", "Body032")

# Sketch on XY plane
sketch33 = body33.newObject("Sketcher::SketchObject", "Sketch032")
sketch33.AttachmentSupport = (doc.getObject("XY_Plane032"), [""])
sketch33.MapMode = "FlatFace"
sketch33.AttachmentOffset = App.Placement(V(0, 0, 5), App.Rotation())
sketch33.addGeometry(Part.Circle(V(9, -65, 0), V(0, 0, 1), 6), False)
sketch33.addConstraint(Sketcher.Constraint("Diameter", 0, 11.0))
sketch33.addConstraint(Sketcher.Constraint("DistanceX", -1, 1, 0, 3, 9.320708))
sketch33.addConstraint(Sketcher.Constraint("DistanceY", 0, 3, -1, 1, 65.125466))
pad33 = body33.newObject("PartDesign::Pad", "Pad032")
pad33.Profile = sketch33
pad33.Length = 17
body34 = doc.addObject("PartDesign::Body", "Body033")

# Sketch on XY plane
sketch34 = body34.newObject("Sketcher::SketchObject", "Sketch033")
sketch34.AttachmentSupport = (doc.getObject("XY_Plane033"), [""])
sketch34.MapMode = "FlatFace"
sketch34.AttachmentOffset = App.Placement(V(0, 0, 5), App.Rotation())
sketch34.addGeometry(Part.Circle(V(34, -45, 0), V(0, 0, 1), 6), False)
sketch34.addConstraint(Sketcher.Constraint("Diameter", 0, 11.0))
sketch34.addConstraint(Sketcher.Constraint("DistanceX", -1, 1, 0, 3, 34.320708))
sketch34.addConstraint(Sketcher.Constraint("DistanceY", 0, 3, -1, 1, 45.125466))
pad34 = body34.newObject("PartDesign::Pad", "Pad033")
pad34.Profile = sketch34
pad34.Length = 17
body35 = doc.addObject("PartDesign::Body", "Body034")

# Sketch on XY plane
sketch35 = body35.newObject("Sketcher::SketchObject", "Sketch034")
sketch35.AttachmentSupport = (doc.getObject("XY_Plane034"), [""])
sketch35.MapMode = "FlatFace"
sketch35.AttachmentOffset = App.Placement(V(0, 0, 5), App.Rotation())
sketch35.addGeometry(Part.Circle(V(34, -65, 0), V(0, 0, 1), 6), False)
sketch35.addConstraint(Sketcher.Constraint("Diameter", 0, 11.0))
sketch35.addConstraint(Sketcher.Constraint("DistanceX", -1, 1, 0, 3, 34.320708))
sketch35.addConstraint(Sketcher.Constraint("DistanceY", 0, 3, -1, 1, 65.125466))
pad35 = body35.newObject("PartDesign::Pad", "Pad034")
pad35.Profile = sketch35
pad35.Length = 17
body36 = doc.addObject("PartDesign::Body", "Body035")

# Sketch on XY plane
sketch36 = body36.newObject("Sketcher::SketchObject", "Sketch035")
sketch36.AttachmentSupport = (doc.getObject("XY_Plane035"), [""])
sketch36.MapMode = "FlatFace"
sketch36.AttachmentOffset = App.Placement(V(0, 0, 5), App.Rotation())
sketch36.addGeometry(Part.Circle(V(59, -45, 0), V(0, 0, 1), 6), False)
sketch36.addConstraint(Sketcher.Constraint("Diameter", 0, 11.0))
sketch36.addConstraint(Sketcher.Constraint("DistanceX", -1, 1, 0, 3, 59.320708))
sketch36.addConstraint(Sketcher.Constraint("DistanceY", 0, 3, -1, 1, 45.125466))
pad36 = body36.newObject("PartDesign::Pad", "Pad035")
pad36.Profile = sketch36
pad36.Length = 17
body37 = doc.addObject("PartDesign::Body", "Body036")

# Sketch on XY plane
sketch37 = body37.newObject("Sketcher::SketchObject", "Sketch036")
sketch37.AttachmentSupport = (doc.getObject("XY_Plane036"), [""])
sketch37.MapMode = "FlatFace"
sketch37.AttachmentOffset = App.Placement(V(0, 0, 5), App.Rotation())
sketch37.addGeometry(Part.Circle(V(59, -65, 0), V(0, 0, 1), 6), False)
sketch37.addConstraint(Sketcher.Constraint("Diameter", 0, 11.0))
sketch37.addConstraint(Sketcher.Constraint("DistanceX", -1, 1, 0, 3, 59.320708))
sketch37.addConstraint(Sketcher.Constraint("DistanceY", 0, 3, -1, 1, 65.125466))
pad37 = body37.newObject("PartDesign::Pad", "Pad036")
pad37.Profile = sketch37
pad37.Length = 17
body38 = doc.addObject("PartDesign::Body", "Body037")

# Sketch on XY plane
sketch38 = body38.newObject("Sketcher::SketchObject", "Sketch037")
sketch38.AttachmentSupport = (doc.getObject("XY_Plane037"), [""])
sketch38.MapMode = "FlatFace"
sketch38.AttachmentOffset = App.Placement(V(0, 0, 5), App.Rotation())
sketch38.addGeometry(Part.Circle(V(84, -45, 0), V(0, 0, 1), 6), False)
sketch38.addConstraint(Sketcher.Constraint("Diameter", 0, 11.0))
sketch38.addConstraint(Sketcher.Constraint("DistanceX", -1, 1, 0, 3, 84.320708))
sketch38.addConstraint(Sketcher.Constraint("DistanceY", 0, 3, -1, 1, 45.125466))
pad38 = body38.newObject("PartDesign::Pad", "Pad037")
pad38.Profile = sketch38
pad38.Length = 17
body39 = doc.addObject("PartDesign::Body", "Body038")

# Sketch on XY plane
sketch39 = body39.newObject("Sketcher::SketchObject", "Sketch038")
sketch39.AttachmentSupport = (doc.getObject("XY_Plane038"), [""])
sketch39.MapMode = "FlatFace"
sketch39.AttachmentOffset = App.Placement(V(0, 0, 5), App.Rotation())
sketch39.addGeometry(Part.Circle(V(84, -65, 0), V(0, 0, 1), 6), False)
sketch39.addConstraint(Sketcher.Constraint("Diameter", 0, 11.0))
sketch39.addConstraint(Sketcher.Constraint("DistanceX", -1, 1, 0, 3, 84.320708))
sketch39.addConstraint(Sketcher.Constraint("DistanceY", 0, 3, -1, 1, 65.125466))
pad39 = body39.newObject("PartDesign::Pad", "Pad038")
pad39.Profile = sketch39
pad39.Length = 17
body40 = doc.addObject("PartDesign::Body", "Body039")

# Sketch on XY plane
sketch40 = body40.newObject("Sketcher::SketchObject", "Sketch039")
sketch40.AttachmentSupport = (doc.getObject("XY_Plane039"), [""])
sketch40.MapMode = "FlatFace"
sketch40.AttachmentOffset = App.Placement(V(0, 0, 5), App.Rotation())
sketch40.addGeometry(Part.Circle(V(109, -45, 0), V(0, 0, 1), 6), False)
sketch40.addConstraint(Sketcher.Constraint("Diameter", 0, 11.0))
sketch40.addConstraint(Sketcher.Constraint("DistanceX", -1, 1, 0, 3, 109.320708))
sketch40.addConstraint(Sketcher.Constraint("DistanceY", 0, 3, -1, 1, 45.125466))
pad40 = body40.newObject("PartDesign::Pad", "Pad039")
pad40.Profile = sketch40
pad40.Length = 17
body41 = doc.addObject("PartDesign::Body", "Body040")

# Sketch on XY plane
sketch41 = body41.newObject("Sketcher::SketchObject", "Sketch040")
sketch41.AttachmentSupport = (doc.getObject("XY_Plane040"), [""])
sketch41.MapMode = "FlatFace"
sketch41.AttachmentOffset = App.Placement(V(0, 0, 5), App.Rotation())
sketch41.addGeometry(Part.Circle(V(109, -65, 0), V(0, 0, 1), 6), False)
sketch41.addConstraint(Sketcher.Constraint("Diameter", 0, 11.0))
sketch41.addConstraint(Sketcher.Constraint("DistanceX", -1, 1, 0, 3, 109.320708))
sketch41.addConstraint(Sketcher.Constraint("DistanceY", 0, 3, -1, 1, 65.125466))
pad41 = body41.newObject("PartDesign::Pad", "Pad040")
pad41.Profile = sketch41
pad41.Length = 17
doc.recompute()

boolean = body.newObject("PartDesign::Boolean", "Boolean")
boolean.Type = "Cut"
boolean.addObjects([body2])
doc.recompute()

boolean2 = body.newObject("PartDesign::Boolean", "Boolean001")
boolean2.Type = "Cut"
boolean2.addObjects([body3])
doc.recompute()

boolean3 = body.newObject("PartDesign::Boolean", "Boolean002")
boolean3.Type = "Cut"
boolean3.addObjects([body4])
doc.recompute()

boolean4 = body.newObject("PartDesign::Boolean", "Boolean003")
boolean4.Type = "Cut"
boolean4.addObjects([body5])
doc.recompute()

boolean5 = body.newObject("PartDesign::Boolean", "Boolean004")
boolean5.Type = "Cut"
boolean5.addObjects([body6])
doc.recompute()

boolean6 = body.newObject("PartDesign::Boolean", "Boolean005")
boolean6.Type = "Cut"
boolean6.addObjects([body7])
doc.recompute()

boolean7 = body.newObject("PartDesign::Boolean", "Boolean006")
boolean7.Type = "Cut"
boolean7.addObjects([body8])
doc.recompute()

boolean8 = body.newObject("PartDesign::Boolean", "Boolean007")
boolean8.Type = "Cut"
boolean8.addObjects([body9])
doc.recompute()

boolean9 = body.newObject("PartDesign::Boolean", "Boolean008")
boolean9.Type = "Cut"
boolean9.addObjects([body10])
doc.recompute()

boolean10 = body.newObject("PartDesign::Boolean", "Boolean009")
boolean10.Type = "Cut"
boolean10.addObjects([body11])
doc.recompute()

boolean11 = body.newObject("PartDesign::Boolean", "Boolean010")
boolean11.Type = "Cut"
boolean11.addObjects([body12])
doc.recompute()

boolean12 = body.newObject("PartDesign::Boolean", "Boolean011")
boolean12.Type = "Cut"
boolean12.addObjects([body13])
doc.recompute()

boolean13 = body.newObject("PartDesign::Boolean", "Boolean012")
boolean13.Type = "Cut"
boolean13.addObjects([body14])
doc.recompute()

boolean14 = body.newObject("PartDesign::Boolean", "Boolean013")
boolean14.Type = "Cut"
boolean14.addObjects([body15])
doc.recompute()

boolean15 = body.newObject("PartDesign::Boolean", "Boolean014")
boolean15.Type = "Cut"
boolean15.addObjects([body16])
doc.recompute()

boolean16 = body.newObject("PartDesign::Boolean", "Boolean015")
boolean16.Type = "Cut"
boolean16.addObjects([body17])
doc.recompute()

boolean17 = body.newObject("PartDesign::Boolean", "Boolean016")
boolean17.Type = "Cut"
boolean17.addObjects([body18])
doc.recompute()

boolean18 = body.newObject("PartDesign::Boolean", "Boolean017")
boolean18.Type = "Cut"
boolean18.addObjects([body19])
doc.recompute()

boolean19 = body.newObject("PartDesign::Boolean", "Boolean018")
boolean19.Type = "Cut"
boolean19.addObjects([body20])
doc.recompute()

boolean20 = body.newObject("PartDesign::Boolean", "Boolean019")
boolean20.Type = "Cut"
boolean20.addObjects([body21])
doc.recompute()

boolean21 = body.newObject("PartDesign::Boolean", "Boolean020")
boolean21.Type = "Cut"
boolean21.addObjects([body22])
doc.recompute()

boolean22 = body.newObject("PartDesign::Boolean", "Boolean021")
boolean22.Type = "Cut"
boolean22.addObjects([body23])
doc.recompute()

boolean23 = body.newObject("PartDesign::Boolean", "Boolean022")
boolean23.Type = "Cut"
boolean23.addObjects([body24])
doc.recompute()

boolean24 = body.newObject("PartDesign::Boolean", "Boolean023")
boolean24.Type = "Cut"
boolean24.addObjects([body25])
doc.recompute()

boolean25 = body.newObject("PartDesign::Boolean", "Boolean024")
boolean25.Type = "Cut"
boolean25.addObjects([body26])
doc.recompute()

boolean26 = body.newObject("PartDesign::Boolean", "Boolean025")
boolean26.Type = "Cut"
boolean26.addObjects([body27])
doc.recompute()

boolean27 = body.newObject("PartDesign::Boolean", "Boolean026")
boolean27.Type = "Cut"
boolean27.addObjects([body28])
doc.recompute()

boolean28 = body.newObject("PartDesign::Boolean", "Boolean027")
boolean28.Type = "Cut"
boolean28.addObjects([body29])
doc.recompute()

boolean29 = body.newObject("PartDesign::Boolean", "Boolean028")
boolean29.Type = "Cut"
boolean29.addObjects([body30])
doc.recompute()

boolean30 = body.newObject("PartDesign::Boolean", "Boolean029")
boolean30.Type = "Cut"
boolean30.addObjects([body31])
doc.recompute()

boolean31 = body.newObject("PartDesign::Boolean", "Boolean030")
boolean31.Type = "Cut"
boolean31.addObjects([body32])
doc.recompute()

boolean32 = body.newObject("PartDesign::Boolean", "Boolean031")
boolean32.Type = "Cut"
boolean32.addObjects([body33])
doc.recompute()

boolean33 = body.newObject("PartDesign::Boolean", "Boolean032")
boolean33.Type = "Cut"
boolean33.addObjects([body34])
doc.recompute()

boolean34 = body.newObject("PartDesign::Boolean", "Boolean033")
boolean34.Type = "Cut"
boolean34.addObjects([body35])
doc.recompute()

boolean35 = body.newObject("PartDesign::Boolean", "Boolean034")
boolean35.Type = "Cut"
boolean35.addObjects([body36])
doc.recompute()

boolean36 = body.newObject("PartDesign::Boolean", "Boolean035")
boolean36.Type = "Cut"
boolean36.addObjects([body37])
doc.recompute()

boolean37 = body.newObject("PartDesign::Boolean", "Boolean036")
boolean37.Type = "Cut"
boolean37.addObjects([body38])
doc.recompute()

boolean38 = body.newObject("PartDesign::Boolean", "Boolean037")
boolean38.Type = "Cut"
boolean38.addObjects([body39])
doc.recompute()

boolean39 = body.newObject("PartDesign::Boolean", "Boolean038")
boolean39.Type = "Cut"
boolean39.addObjects([body40])
doc.recompute()

boolean40 = body.newObject("PartDesign::Boolean", "Boolean039")
boolean40.Type = "Cut"
boolean40.addObjects([body41])
doc.recompute()

fillet2 = body.newObject("PartDesign::Fillet", "Fillet001")
fillet2.Base = (boolean40, edges_at(boolean40, [
    (-3.179, 11.934, 21),
    (130.356, 10.47, 21),
    (-136.715, 10.47, 21),
    (131.821, -30.566, 21),
    (-138.179, -30.566, 21),
    (130.356, -71.601, 21),
    (-136.715, -71.601, 21),
    (-3.179, -73.066, 21),
    (-121.179, -65.125, 21),
    (-96.179, -65.125, 21),
    (-71.179, -65.125, 21),
    (-46.179, -65.125, 21),
    (-21.179, -65.125, 21),
    (-121.179, -45.125, 21),
    (-96.179, -45.125, 21),
    (-71.179, -45.125, 21),
    (-46.179, -45.125, 21),
    (-21.179, -45.125, 21),
    (3.821, -65.125, 21),
    (28.821, -65.125, 21),
    (53.821, -65.125, 21),
    (78.821, -65.125, 21),
    (103.821, -65.125, 21),
    (3.821, -45.125, 21),
    (28.821, -45.125, 21),
    (53.821, -45.125, 21),
    (78.821, -45.125, 21),
    (103.821, -45.125, 21),
    (-123.179, -25, 21),
    (-98.179, -25, 21),
    (-73.179, -25, 21),
    (-48.179, -25, 21),
    (-23.179, -25, 21),
    (-123.179, 0, 21),
    (-98.179, 0, 21),
    (-73.179, 0, 21),
    (-48.179, 0, 21),
    (-23.179, 0, 21),
    (1.821, -25, 21),
    (26.821, -25, 21),
    (51.821, -25, 21),
    (76.821, -25, 21),
    (101.821, -25, 21),
    (1.821, 0, 21),
    (26.821, 0, 21),
    (51.821, 0, 21),
    (76.821, 0, 21),
    (101.821, 0, 21),
]))
fillet2.Radius = 2

doc.recompute()
